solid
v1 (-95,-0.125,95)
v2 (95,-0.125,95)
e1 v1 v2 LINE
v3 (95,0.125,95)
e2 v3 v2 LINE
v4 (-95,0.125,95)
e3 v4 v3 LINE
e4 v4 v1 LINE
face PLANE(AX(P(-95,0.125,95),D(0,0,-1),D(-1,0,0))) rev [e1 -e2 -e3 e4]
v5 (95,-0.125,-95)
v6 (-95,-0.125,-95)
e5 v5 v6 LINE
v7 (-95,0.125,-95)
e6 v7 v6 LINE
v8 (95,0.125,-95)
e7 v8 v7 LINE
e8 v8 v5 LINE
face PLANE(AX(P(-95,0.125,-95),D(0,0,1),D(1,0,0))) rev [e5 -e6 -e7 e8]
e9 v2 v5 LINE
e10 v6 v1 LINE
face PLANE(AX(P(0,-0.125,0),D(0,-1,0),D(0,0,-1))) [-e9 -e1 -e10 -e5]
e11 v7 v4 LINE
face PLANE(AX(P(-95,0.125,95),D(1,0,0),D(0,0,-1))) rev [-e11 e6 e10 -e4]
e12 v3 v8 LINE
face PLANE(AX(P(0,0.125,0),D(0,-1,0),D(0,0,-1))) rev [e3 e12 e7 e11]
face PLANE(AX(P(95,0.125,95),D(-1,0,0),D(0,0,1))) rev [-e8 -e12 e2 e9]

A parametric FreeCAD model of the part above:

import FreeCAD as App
import Part
import Sketcher

V = App.Vector
Q = App.Units.Quantity


def add_polygon(sketch, points):
    """Adds a closed chain of lines whose ends are joined by coincident constraints."""
    first, n = sketch.GeometryCount, len(points)
    for a, b in zip(points, points[1:] + points[:1]):
        sketch.addGeometry(Part.LineSegment(App.Vector(*a, 0), App.Vector(*b, 0)), False)
    for i in range(n):
        sketch.addConstraint(Sketcher.Constraint("Coincident", first + i, 2, first + (i + 1) % n, 1))

doc = App.newDocument("Part")
params = doc.addObject("Spreadsheet::Sheet", "Params")
for row, (alias, value) in enumerate([
    ("sketch1_width", "190 mm"),
    ("pad1_length", "0.25 mm"),
], start=1):
    params.set(f"A{row}", alias)
    params.set(f"B{row}", "=" + value)
    params.setAlias(f"B{row}", alias)

body = doc.addObject("PartDesign::Body", "Body")

sketch1 = body.newObject("Sketcher::SketchObject", "Sketch")
sketch1.AttachmentSupport = (doc.getObject("XZ_Plane"), [""])
sketch1.MapMode = "FlatFace"
add_polygon(sketch1, [(-95, -95), (-95, 95), (95, 95), (95, -95)])
sketch1.addConstraint(Sketcher.Constraint("Vertical", 0))
sketch1.addConstraint(Sketcher.Constraint("Horizontal", 1))
sketch1.addConstraint(Sketcher.Constraint("Vertical", 2))
sketch1.addConstraint(Sketcher.Constraint("Horizontal", 3))
sketch1.addConstraint(Sketcher.Constraint("Symmetric", 0, 2, 2, 2, -1, 1))
sketch1.addConstraint(Sketcher.Constraint("Equal", 3, 0))
sketch1.addConstraint(Sketcher.Constraint("DistanceX", 1, 1, 1, 2, Q("190 mm")))
sketch1.setExpression("Constraints[10]", "Params.sketch1_width")
pad1 = body.newObject("PartDesign::Pad", "Pad")
pad1.Profile = sketch1
pad1.setExpression("Length", "Params.pad1_length")
pad1.Midplane = True

doc.recompute()
